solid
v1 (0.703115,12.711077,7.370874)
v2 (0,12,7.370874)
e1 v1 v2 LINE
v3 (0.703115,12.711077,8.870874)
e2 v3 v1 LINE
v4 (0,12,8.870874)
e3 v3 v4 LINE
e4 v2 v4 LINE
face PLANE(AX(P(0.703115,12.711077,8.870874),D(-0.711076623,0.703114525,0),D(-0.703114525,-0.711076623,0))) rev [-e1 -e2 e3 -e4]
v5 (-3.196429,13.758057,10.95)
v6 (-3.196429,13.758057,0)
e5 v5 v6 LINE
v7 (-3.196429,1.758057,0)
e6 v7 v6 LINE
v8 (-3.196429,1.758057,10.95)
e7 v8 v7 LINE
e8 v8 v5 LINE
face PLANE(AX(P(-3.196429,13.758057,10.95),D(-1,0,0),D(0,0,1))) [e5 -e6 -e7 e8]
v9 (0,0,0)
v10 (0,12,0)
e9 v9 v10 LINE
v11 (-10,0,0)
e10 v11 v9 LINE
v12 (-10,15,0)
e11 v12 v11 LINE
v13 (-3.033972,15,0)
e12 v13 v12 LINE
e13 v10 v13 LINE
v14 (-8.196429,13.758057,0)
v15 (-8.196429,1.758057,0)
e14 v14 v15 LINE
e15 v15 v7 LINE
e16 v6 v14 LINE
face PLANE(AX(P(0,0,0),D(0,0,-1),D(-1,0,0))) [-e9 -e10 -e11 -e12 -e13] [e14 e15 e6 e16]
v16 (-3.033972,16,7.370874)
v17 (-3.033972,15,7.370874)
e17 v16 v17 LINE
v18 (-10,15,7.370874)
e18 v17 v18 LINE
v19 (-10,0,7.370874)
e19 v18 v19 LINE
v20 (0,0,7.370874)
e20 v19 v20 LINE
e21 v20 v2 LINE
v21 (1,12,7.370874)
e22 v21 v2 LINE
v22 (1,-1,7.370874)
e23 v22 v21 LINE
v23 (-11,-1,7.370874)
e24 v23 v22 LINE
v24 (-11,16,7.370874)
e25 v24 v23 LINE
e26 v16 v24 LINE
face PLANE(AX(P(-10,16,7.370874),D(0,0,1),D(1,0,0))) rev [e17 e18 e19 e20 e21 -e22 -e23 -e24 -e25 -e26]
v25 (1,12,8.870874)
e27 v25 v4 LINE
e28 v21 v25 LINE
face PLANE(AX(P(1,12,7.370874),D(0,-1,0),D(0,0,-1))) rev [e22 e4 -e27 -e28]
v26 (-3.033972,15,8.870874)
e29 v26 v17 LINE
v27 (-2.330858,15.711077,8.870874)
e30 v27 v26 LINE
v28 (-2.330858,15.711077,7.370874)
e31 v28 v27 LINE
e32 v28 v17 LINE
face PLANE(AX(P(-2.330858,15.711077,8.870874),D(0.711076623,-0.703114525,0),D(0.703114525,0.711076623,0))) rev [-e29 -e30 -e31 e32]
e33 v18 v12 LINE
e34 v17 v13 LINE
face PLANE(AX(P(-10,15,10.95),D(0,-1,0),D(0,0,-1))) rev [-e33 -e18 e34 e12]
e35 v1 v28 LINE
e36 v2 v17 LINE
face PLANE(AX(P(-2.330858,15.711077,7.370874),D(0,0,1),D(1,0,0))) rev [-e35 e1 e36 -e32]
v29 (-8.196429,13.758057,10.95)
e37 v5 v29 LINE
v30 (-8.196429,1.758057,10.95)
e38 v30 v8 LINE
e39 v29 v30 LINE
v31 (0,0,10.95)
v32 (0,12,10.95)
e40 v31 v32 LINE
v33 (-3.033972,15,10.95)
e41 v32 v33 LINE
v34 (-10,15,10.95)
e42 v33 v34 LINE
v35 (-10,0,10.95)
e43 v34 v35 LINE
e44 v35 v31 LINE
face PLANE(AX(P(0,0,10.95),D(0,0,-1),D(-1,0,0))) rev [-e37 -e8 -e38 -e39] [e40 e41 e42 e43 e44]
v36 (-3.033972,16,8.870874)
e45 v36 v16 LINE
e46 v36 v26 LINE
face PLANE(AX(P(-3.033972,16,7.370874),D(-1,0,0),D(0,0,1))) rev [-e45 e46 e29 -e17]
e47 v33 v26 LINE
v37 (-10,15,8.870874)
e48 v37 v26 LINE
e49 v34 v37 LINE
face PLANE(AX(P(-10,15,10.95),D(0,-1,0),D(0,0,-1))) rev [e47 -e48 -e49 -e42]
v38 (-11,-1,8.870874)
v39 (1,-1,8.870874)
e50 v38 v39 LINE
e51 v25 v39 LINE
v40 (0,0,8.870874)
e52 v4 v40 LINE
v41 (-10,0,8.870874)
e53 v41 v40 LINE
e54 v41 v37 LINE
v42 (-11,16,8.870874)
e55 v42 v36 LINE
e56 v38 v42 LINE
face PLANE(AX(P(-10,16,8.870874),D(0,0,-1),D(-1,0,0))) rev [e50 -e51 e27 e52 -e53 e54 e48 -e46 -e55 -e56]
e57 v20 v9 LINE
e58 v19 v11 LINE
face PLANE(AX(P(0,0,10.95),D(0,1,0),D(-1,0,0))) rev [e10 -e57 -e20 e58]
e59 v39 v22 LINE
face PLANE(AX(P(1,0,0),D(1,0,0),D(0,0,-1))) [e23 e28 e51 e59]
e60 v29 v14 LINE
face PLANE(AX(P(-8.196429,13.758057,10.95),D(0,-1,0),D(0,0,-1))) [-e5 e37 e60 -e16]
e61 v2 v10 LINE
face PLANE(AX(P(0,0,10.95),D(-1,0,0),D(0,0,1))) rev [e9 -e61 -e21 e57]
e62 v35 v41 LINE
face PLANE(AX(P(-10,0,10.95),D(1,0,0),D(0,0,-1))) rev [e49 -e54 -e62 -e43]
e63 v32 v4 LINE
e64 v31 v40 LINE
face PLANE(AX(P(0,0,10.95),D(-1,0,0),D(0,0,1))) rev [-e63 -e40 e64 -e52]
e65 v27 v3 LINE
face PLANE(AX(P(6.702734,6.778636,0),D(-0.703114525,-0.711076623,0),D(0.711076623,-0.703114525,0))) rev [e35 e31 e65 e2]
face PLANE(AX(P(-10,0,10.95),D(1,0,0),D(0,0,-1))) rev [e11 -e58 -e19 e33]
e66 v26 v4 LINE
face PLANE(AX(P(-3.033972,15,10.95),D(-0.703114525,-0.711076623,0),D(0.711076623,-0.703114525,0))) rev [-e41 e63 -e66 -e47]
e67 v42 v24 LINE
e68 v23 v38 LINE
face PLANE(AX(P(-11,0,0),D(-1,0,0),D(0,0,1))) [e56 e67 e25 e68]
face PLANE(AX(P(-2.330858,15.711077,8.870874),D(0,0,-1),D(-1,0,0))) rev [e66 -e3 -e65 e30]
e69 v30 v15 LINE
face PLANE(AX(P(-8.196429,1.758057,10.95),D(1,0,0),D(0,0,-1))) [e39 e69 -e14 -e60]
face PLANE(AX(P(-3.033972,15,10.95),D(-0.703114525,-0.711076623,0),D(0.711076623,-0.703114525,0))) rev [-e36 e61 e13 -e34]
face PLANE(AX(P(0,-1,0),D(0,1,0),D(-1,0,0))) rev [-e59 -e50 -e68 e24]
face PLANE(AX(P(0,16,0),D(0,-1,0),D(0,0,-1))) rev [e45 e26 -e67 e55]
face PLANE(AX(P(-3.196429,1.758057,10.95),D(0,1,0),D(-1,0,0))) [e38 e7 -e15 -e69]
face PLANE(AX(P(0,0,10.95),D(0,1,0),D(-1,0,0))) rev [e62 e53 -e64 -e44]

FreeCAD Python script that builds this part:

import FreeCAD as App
import Part
import Sketcher
Q = App.Units.Quantity

doc = App.newDocument("Part")
body = doc.addObject("PartDesign::Body", "Body")

# Sketch on XY plane
sketch1 = body.newObject("Sketcher::SketchObject", "Sketch")
sketch1.AttachmentSupport = (doc.getObject("XY_Plane"), [""])
sketch1.MapMode = "FlatFace"
sketch1.addGeometry([
    Part.LineSegment(App.Vector(-10, 0, 0), App.Vector(0, 0, 0)),  # 0
    Part.LineSegment(App.Vector(0, 0, 0), App.Vector(0, 12, 0)),  # 1
    Part.LineSegment(App.Vector(0, 12, 0), App.Vector(-3, 15, 0)),  # 2
    Part.LineSegment(App.Vector(-3, 15, 0), App.Vector(-10, 15, 0)),  # 3
    Part.LineSegment(App.Vector(-10, 15, 0), App.Vector(-10, 0, 0)),  # 4
    Part.LineSegment(App.Vector(-8.2, 1.8, 0), App.Vector(-8.2, 13.8, 0)),  # 5
    Part.LineSegment(App.Vector(-8.2, 13.8, 0), App.Vector(-3.2, 13.8, 0)),  # 6
    Part.LineSegment(App.Vector(-3.2, 13.8, 0), App.Vector(-3.2, 1.8, 0)),  # 7
    Part.LineSegment(App.Vector(-3.2, 1.8, 0), App.Vector(-8.2, 1.8, 0)),  # 8
], False)
sketch1.addConstraint([
    Sketcher.Constraint("Coincident", 0, 2, 1, 1),
    Sketcher.Constraint("Coincident", 1, 2, 2, 1),
    Sketcher.Constraint("Coincident", 2, 2, 3, 1),
    Sketcher.Constraint("Coincident", 3, 2, 4, 1),
    Sketcher.Constraint("Coincident", 4, 2, 0, 1),
    Sketcher.Constraint("Coincident", 5, 2, 6, 1),
    Sketcher.Constraint("Coincident", 6, 2, 7, 1),
    Sketcher.Constraint("Coincident", 7, 2, 8, 1),
    Sketcher.Constraint("Coincident", 8, 2, 5, 1),
    Sketcher.Constraint("Horizontal", 0),
    Sketcher.Constraint("Vertical", 1),
    Sketcher.Constraint("Horizontal", 3),
    Sketcher.Constraint("Vertical", 4),
    Sketcher.Constraint("Vertical", 5),
    Sketcher.Constraint("Horizontal", 6),
    Sketcher.Constraint("Vertical", 7),
    Sketcher.Constraint("Horizontal", 8),
    Sketcher.Constraint("Coincident", 0, 2, -1, 1),
    Sketcher.Constraint("Equal", 1, 5),
    Sketcher.Constraint("DistanceX", 0, 1, 0, 2, Q("10 mm")),
    Sketcher.Constraint("DistanceX", 6, 1, 6, 2, Q("5 mm")),
    Sketcher.Constraint("DistanceY", 1, 1, 1, 2, Q("12 mm")),
    Sketcher.Constraint("DistanceY", 4, 2, 4, 1, Q("15 mm")),
    Sketcher.Constraint("Distance", 2, Q("4.26673 mm")),
    Sketcher.Constraint("DistanceX", 5, 2, -1, 1, Q("8.196429 mm")),
    Sketcher.Constraint("DistanceY", -1, 1, 5, 2, Q("13.758057 mm")),
])
pad1 = body.newObject("PartDesign::Pad", "Pad")
pad1.Profile = sketch1
pad1.Length = 10.95

# Sketch on XZ plane
sketch2 = body.newObject("Sketcher::SketchObject", "Sketch001")
sketch2.AttachmentSupport = (doc.getObject("XZ_Plane"), [""])
sketch2.MapMode = "FlatFace"
sketch2.AttachmentOffset = App.Placement(App.Vector(0, 0, -15), App.Rotation())
sketch2.addGeometry([
    Part.LineSegment(App.Vector(-10, 7.4, 0), App.Vector(-10, 8.9, 0)),
    Part.LineSegment(App.Vector(-10, 8.9, 0), App.Vector(-3, 8.9, 0)),
    Part.LineSegment(App.Vector(-3, 8.9, 0), App.Vector(-3, 7.4, 0)),
    Part.LineSegment(App.Vector(-3, 7.4, 0), App.Vector(-10, 7.4, 0)),
], False)
sketch2.addConstraint([
    Sketcher.Constraint("Coincident", 0, 2, 1, 1),
    Sketcher.Constraint("Coincident", 1, 2, 2, 1),
    Sketcher.Constraint("Coincident", 2, 2, 3, 1),
    Sketcher.Constraint("Coincident", 3, 2, 0, 1),
    Sketcher.Constraint("Vertical", 0),
    Sketcher.Constraint("Horizontal", 1),
    Sketcher.Constraint("Vertical", 2),
    Sketcher.Constraint("Horizontal", 3),
    Sketcher.Constraint("DistanceY", 0, 1, 0, 2, Q("1.5 mm")),
    Sketcher.Constraint("DistanceX", 0, 2, -1, 1, Q("10 mm")),
    Sketcher.Constraint("DistanceX", 1, 1, 1, 2, Q("6.966028 mm")),
    Sketcher.Constraint("DistanceY", -1, 1, 0, 2, Q("8.870874 mm")),
])
pad2 = body.newObject("PartDesign::Pad", "Pad001")
pad2.Profile = sketch2
pad2.Length = 1
pad2.Reversed = True

# Sketch on XZ plane
sketch3 = body.newObject("Sketcher::SketchObject", "Sketch002")
sketch3.AttachmentSupport = (doc.getObject("XZ_Plane"), [""])
sketch3.MapMode = "FlatFace"
sketch3.addGeometry([
    Part.LineSegment(App.Vector(-10, 8.9, 0), App.Vector(-10, 7.4, 0)),
    Part.LineSegment(App.Vector(-10, 7.4, 0), App.Vector(0, 7.4, 0)),
    Part.LineSegment(App.Vector(0, 7.4, 0), App.Vector(0, 8.9, 0)),
    Part.LineSegment(App.Vector(0, 8.9, 0), App.Vector(-10, 8.9, 0)),
], False)
sketch3.addConstraint([
    Sketcher.Constraint("Coincident", 0, 2, 1, 1),
    Sketcher.Constraint("Coincident", 1, 2, 2, 1),
    Sketcher.Constraint("Coincident", 2, 2, 3, 1),
    Sketcher.Constraint("Coincident", 3, 2, 0, 1),
    Sketcher.Constraint("Vertical", 0),
    Sketcher.Constraint("Horizontal", 1),
    Sketcher.Constraint("Vertical", 2),
    Sketcher.Constraint("Horizontal", 3),
    Sketcher.Constraint("PointOnObject", 1, 2, -2),
    Sketcher.Constraint("DistanceX", 1, 1, 1, 2, Q("10 mm")),
    Sketcher.Constraint("DistanceY", 0, 2, 0, 1, Q("1.5 mm")),
    Sketcher.Constraint("DistanceY", -1, 1, 0, 2, Q("7.370874 mm")),
])
pad3 = body.newObject("PartDesign::Pad", "Pad002")
pad3.Profile = sketch3
pad3.Length = 1

# Sketch on YZ plane
sketch4 = body.newObject("Sketcher::SketchObject", "Sketch003")
sketch4.AttachmentSupport = (doc.getObject("YZ_Plane"), [""])
sketch4.MapMode = "FlatFace"
sketch4.AttachmentOffset = App.Placement(App.Vector(0, 0, -10), App.Rotation())
sketch4.addGeometry([
    Part.LineSegment(App.Vector(16, 7.4, 0), App.Vector(-1, 7.4, 0)),
    Part.LineSegment(App.Vector(-1, 7.4, 0), App.Vector(-1, 8.9, 0)),
    Part.LineSegment(App.Vector(-1, 8.9, 0), App.Vector(16, 8.9, 0)),
    Part.LineSegment(App.Vector(16, 8.9, 0), App.Vector(16, 7.4, 0)),
], False)
sketch4.addConstraint([
    Sketcher.Constraint("Coincident", 0, 2, 1, 1),
    Sketcher.Constraint("Coincident", 1, 2, 2, 1),
    Sketcher.Constraint("Coincident", 2, 2, 3, 1),
    Sketcher.Constraint("Coincident", 3, 2, 0, 1),
    Sketcher.Constraint("Horizontal", 0),
    Sketcher.Constraint("Vertical", 1),
    Sketcher.Constraint("Horizontal", 2),
    Sketcher.Constraint("Vertical", 3),
    Sketcher.Constraint("DistanceX", 0, 2, 0, 1, Q("17 mm")),
    Sketcher.Constraint("DistanceY", 1, 1, 1, 2, Q("1.5 mm")),
    Sketcher.Constraint("DistanceX", 0, 2, -1, 1, Q("1 mm")),
    Sketcher.Constraint("DistanceY", -1, 1, 0, 2, Q("7.370874 mm")),
])
pad4 = body.newObject("PartDesign::Pad", "Pad003")
pad4.Profile = sketch4
pad4.Length = 1
pad4.Reversed = True

# Sketch on YZ plane
sketch5 = body.newObject("Sketcher::SketchObject", "Sketch004")
sketch5.AttachmentSupport = (doc.getObject("YZ_Plane"), [""])
sketch5.MapMode = "FlatFace"
sketch5.addGeometry([
    Part.LineSegment(App.Vector(12, 8.9, 0), App.Vector(-1, 8.9, 0)),
    Part.LineSegment(App.Vector(-1, 8.9, 0), App.Vector(-1, 7.4, 0)),
    Part.LineSegment(App.Vector(-1, 7.4, 0), App.Vector(12, 7.4, 0)),
    Part.LineSegment(App.Vector(12, 7.4, 0), App.Vector(12, 8.9, 0)),
], False)
sketch5.addConstraint([
    Sketcher.Constraint("Coincident", 0, 2, 1, 1),
    Sketcher.Constraint("Coincident", 1, 2, 2, 1),
    Sketcher.Constraint("Coincident", 2, 2, 3, 1),
    Sketcher.Constraint("Coincident", 3, 2, 0, 1),
    Sketcher.Constraint("Horizontal", 0),
    Sketcher.Constraint("Vertical", 1),
    Sketcher.Constraint("Horizontal", 2),
    Sketcher.Constraint("Vertical", 3),
    Sketcher.Constraint("DistanceX", 0, 2, 0, 1, Q("13 mm")),
    Sketcher.Constraint("DistanceY", 1, 2, 1, 1, Q("1.5 mm")),
    Sketcher.Constraint("DistanceX", 0, 2, -1, 1, Q("1 mm")),
    Sketcher.Constraint("DistanceY", -1, 1, 0, 2, Q("8.870874 mm")),
])
pad5 = body.newObject("PartDesign::Pad", "Pad004")
pad5.Profile = sketch5
pad5.Length = 1

# Sketch on an angled plane
sketch6 = body.newObject("Sketcher::SketchObject", "Sketch005")
sketch6.Placement = App.Placement(App.Vector(5.99962, 6.06756, 0), App.Rotation(App.Vector(0.711076623, -0.703114525, 0), App.Vector(0, 0, -0.999999999), App.Vector(0.703114525, 0.711076623, 0), "ZXY"))
sketch6.addGeometry([
    Part.LineSegment(App.Vector(-12.7, -7.4, 0), App.Vector(-12.7, -8.9, 0)),
    Part.LineSegment(App.Vector(-12.7, -8.9, 0), App.Vector(-8.4, -8.9, 0)),
    Part.LineSegment(App.Vector(-8.4, -8.9, 0), App.Vector(-8.4, -7.4, 0)),
    Part.LineSegment(App.Vector(-8.4, -7.4, 0), App.Vector(-12.7, -7.4, 0)),
], False)
sketch6.addConstraint([
    Sketcher.Constraint("Coincident", 0, 2, 1, 1),
    Sketcher.Constraint("Coincident", 1, 2, 2, 1),
    Sketcher.Constraint("Coincident", 2, 2, 3, 1),
    Sketcher.Constraint("Coincident", 3, 2, 0, 1),
    Sketcher.Constraint("Vertical", 0),
    Sketcher.Constraint("Horizontal", 1),
    Sketcher.Constraint("Vertical", 2),
    Sketcher.Constraint("Horizontal", 3),
    Sketcher.Constraint("DistanceY", 0, 2, 0, 1, Q("1.5 mm")),
    Sketcher.Constraint("DistanceX", 1, 1, 1, 2, Q("4.26673 mm")),
    Sketcher.Constraint("DistanceX", 0, 2, -1, 1, Q("12.704105 mm")),
    Sketcher.Constraint("DistanceY", 0, 2, -1, 1, Q("8.870874 mm")),
])
pad6 = body.newObject("PartDesign::Pad", "Pad005")
pad6.Profile = sketch6
pad6.Length = 1

doc.recompute()
